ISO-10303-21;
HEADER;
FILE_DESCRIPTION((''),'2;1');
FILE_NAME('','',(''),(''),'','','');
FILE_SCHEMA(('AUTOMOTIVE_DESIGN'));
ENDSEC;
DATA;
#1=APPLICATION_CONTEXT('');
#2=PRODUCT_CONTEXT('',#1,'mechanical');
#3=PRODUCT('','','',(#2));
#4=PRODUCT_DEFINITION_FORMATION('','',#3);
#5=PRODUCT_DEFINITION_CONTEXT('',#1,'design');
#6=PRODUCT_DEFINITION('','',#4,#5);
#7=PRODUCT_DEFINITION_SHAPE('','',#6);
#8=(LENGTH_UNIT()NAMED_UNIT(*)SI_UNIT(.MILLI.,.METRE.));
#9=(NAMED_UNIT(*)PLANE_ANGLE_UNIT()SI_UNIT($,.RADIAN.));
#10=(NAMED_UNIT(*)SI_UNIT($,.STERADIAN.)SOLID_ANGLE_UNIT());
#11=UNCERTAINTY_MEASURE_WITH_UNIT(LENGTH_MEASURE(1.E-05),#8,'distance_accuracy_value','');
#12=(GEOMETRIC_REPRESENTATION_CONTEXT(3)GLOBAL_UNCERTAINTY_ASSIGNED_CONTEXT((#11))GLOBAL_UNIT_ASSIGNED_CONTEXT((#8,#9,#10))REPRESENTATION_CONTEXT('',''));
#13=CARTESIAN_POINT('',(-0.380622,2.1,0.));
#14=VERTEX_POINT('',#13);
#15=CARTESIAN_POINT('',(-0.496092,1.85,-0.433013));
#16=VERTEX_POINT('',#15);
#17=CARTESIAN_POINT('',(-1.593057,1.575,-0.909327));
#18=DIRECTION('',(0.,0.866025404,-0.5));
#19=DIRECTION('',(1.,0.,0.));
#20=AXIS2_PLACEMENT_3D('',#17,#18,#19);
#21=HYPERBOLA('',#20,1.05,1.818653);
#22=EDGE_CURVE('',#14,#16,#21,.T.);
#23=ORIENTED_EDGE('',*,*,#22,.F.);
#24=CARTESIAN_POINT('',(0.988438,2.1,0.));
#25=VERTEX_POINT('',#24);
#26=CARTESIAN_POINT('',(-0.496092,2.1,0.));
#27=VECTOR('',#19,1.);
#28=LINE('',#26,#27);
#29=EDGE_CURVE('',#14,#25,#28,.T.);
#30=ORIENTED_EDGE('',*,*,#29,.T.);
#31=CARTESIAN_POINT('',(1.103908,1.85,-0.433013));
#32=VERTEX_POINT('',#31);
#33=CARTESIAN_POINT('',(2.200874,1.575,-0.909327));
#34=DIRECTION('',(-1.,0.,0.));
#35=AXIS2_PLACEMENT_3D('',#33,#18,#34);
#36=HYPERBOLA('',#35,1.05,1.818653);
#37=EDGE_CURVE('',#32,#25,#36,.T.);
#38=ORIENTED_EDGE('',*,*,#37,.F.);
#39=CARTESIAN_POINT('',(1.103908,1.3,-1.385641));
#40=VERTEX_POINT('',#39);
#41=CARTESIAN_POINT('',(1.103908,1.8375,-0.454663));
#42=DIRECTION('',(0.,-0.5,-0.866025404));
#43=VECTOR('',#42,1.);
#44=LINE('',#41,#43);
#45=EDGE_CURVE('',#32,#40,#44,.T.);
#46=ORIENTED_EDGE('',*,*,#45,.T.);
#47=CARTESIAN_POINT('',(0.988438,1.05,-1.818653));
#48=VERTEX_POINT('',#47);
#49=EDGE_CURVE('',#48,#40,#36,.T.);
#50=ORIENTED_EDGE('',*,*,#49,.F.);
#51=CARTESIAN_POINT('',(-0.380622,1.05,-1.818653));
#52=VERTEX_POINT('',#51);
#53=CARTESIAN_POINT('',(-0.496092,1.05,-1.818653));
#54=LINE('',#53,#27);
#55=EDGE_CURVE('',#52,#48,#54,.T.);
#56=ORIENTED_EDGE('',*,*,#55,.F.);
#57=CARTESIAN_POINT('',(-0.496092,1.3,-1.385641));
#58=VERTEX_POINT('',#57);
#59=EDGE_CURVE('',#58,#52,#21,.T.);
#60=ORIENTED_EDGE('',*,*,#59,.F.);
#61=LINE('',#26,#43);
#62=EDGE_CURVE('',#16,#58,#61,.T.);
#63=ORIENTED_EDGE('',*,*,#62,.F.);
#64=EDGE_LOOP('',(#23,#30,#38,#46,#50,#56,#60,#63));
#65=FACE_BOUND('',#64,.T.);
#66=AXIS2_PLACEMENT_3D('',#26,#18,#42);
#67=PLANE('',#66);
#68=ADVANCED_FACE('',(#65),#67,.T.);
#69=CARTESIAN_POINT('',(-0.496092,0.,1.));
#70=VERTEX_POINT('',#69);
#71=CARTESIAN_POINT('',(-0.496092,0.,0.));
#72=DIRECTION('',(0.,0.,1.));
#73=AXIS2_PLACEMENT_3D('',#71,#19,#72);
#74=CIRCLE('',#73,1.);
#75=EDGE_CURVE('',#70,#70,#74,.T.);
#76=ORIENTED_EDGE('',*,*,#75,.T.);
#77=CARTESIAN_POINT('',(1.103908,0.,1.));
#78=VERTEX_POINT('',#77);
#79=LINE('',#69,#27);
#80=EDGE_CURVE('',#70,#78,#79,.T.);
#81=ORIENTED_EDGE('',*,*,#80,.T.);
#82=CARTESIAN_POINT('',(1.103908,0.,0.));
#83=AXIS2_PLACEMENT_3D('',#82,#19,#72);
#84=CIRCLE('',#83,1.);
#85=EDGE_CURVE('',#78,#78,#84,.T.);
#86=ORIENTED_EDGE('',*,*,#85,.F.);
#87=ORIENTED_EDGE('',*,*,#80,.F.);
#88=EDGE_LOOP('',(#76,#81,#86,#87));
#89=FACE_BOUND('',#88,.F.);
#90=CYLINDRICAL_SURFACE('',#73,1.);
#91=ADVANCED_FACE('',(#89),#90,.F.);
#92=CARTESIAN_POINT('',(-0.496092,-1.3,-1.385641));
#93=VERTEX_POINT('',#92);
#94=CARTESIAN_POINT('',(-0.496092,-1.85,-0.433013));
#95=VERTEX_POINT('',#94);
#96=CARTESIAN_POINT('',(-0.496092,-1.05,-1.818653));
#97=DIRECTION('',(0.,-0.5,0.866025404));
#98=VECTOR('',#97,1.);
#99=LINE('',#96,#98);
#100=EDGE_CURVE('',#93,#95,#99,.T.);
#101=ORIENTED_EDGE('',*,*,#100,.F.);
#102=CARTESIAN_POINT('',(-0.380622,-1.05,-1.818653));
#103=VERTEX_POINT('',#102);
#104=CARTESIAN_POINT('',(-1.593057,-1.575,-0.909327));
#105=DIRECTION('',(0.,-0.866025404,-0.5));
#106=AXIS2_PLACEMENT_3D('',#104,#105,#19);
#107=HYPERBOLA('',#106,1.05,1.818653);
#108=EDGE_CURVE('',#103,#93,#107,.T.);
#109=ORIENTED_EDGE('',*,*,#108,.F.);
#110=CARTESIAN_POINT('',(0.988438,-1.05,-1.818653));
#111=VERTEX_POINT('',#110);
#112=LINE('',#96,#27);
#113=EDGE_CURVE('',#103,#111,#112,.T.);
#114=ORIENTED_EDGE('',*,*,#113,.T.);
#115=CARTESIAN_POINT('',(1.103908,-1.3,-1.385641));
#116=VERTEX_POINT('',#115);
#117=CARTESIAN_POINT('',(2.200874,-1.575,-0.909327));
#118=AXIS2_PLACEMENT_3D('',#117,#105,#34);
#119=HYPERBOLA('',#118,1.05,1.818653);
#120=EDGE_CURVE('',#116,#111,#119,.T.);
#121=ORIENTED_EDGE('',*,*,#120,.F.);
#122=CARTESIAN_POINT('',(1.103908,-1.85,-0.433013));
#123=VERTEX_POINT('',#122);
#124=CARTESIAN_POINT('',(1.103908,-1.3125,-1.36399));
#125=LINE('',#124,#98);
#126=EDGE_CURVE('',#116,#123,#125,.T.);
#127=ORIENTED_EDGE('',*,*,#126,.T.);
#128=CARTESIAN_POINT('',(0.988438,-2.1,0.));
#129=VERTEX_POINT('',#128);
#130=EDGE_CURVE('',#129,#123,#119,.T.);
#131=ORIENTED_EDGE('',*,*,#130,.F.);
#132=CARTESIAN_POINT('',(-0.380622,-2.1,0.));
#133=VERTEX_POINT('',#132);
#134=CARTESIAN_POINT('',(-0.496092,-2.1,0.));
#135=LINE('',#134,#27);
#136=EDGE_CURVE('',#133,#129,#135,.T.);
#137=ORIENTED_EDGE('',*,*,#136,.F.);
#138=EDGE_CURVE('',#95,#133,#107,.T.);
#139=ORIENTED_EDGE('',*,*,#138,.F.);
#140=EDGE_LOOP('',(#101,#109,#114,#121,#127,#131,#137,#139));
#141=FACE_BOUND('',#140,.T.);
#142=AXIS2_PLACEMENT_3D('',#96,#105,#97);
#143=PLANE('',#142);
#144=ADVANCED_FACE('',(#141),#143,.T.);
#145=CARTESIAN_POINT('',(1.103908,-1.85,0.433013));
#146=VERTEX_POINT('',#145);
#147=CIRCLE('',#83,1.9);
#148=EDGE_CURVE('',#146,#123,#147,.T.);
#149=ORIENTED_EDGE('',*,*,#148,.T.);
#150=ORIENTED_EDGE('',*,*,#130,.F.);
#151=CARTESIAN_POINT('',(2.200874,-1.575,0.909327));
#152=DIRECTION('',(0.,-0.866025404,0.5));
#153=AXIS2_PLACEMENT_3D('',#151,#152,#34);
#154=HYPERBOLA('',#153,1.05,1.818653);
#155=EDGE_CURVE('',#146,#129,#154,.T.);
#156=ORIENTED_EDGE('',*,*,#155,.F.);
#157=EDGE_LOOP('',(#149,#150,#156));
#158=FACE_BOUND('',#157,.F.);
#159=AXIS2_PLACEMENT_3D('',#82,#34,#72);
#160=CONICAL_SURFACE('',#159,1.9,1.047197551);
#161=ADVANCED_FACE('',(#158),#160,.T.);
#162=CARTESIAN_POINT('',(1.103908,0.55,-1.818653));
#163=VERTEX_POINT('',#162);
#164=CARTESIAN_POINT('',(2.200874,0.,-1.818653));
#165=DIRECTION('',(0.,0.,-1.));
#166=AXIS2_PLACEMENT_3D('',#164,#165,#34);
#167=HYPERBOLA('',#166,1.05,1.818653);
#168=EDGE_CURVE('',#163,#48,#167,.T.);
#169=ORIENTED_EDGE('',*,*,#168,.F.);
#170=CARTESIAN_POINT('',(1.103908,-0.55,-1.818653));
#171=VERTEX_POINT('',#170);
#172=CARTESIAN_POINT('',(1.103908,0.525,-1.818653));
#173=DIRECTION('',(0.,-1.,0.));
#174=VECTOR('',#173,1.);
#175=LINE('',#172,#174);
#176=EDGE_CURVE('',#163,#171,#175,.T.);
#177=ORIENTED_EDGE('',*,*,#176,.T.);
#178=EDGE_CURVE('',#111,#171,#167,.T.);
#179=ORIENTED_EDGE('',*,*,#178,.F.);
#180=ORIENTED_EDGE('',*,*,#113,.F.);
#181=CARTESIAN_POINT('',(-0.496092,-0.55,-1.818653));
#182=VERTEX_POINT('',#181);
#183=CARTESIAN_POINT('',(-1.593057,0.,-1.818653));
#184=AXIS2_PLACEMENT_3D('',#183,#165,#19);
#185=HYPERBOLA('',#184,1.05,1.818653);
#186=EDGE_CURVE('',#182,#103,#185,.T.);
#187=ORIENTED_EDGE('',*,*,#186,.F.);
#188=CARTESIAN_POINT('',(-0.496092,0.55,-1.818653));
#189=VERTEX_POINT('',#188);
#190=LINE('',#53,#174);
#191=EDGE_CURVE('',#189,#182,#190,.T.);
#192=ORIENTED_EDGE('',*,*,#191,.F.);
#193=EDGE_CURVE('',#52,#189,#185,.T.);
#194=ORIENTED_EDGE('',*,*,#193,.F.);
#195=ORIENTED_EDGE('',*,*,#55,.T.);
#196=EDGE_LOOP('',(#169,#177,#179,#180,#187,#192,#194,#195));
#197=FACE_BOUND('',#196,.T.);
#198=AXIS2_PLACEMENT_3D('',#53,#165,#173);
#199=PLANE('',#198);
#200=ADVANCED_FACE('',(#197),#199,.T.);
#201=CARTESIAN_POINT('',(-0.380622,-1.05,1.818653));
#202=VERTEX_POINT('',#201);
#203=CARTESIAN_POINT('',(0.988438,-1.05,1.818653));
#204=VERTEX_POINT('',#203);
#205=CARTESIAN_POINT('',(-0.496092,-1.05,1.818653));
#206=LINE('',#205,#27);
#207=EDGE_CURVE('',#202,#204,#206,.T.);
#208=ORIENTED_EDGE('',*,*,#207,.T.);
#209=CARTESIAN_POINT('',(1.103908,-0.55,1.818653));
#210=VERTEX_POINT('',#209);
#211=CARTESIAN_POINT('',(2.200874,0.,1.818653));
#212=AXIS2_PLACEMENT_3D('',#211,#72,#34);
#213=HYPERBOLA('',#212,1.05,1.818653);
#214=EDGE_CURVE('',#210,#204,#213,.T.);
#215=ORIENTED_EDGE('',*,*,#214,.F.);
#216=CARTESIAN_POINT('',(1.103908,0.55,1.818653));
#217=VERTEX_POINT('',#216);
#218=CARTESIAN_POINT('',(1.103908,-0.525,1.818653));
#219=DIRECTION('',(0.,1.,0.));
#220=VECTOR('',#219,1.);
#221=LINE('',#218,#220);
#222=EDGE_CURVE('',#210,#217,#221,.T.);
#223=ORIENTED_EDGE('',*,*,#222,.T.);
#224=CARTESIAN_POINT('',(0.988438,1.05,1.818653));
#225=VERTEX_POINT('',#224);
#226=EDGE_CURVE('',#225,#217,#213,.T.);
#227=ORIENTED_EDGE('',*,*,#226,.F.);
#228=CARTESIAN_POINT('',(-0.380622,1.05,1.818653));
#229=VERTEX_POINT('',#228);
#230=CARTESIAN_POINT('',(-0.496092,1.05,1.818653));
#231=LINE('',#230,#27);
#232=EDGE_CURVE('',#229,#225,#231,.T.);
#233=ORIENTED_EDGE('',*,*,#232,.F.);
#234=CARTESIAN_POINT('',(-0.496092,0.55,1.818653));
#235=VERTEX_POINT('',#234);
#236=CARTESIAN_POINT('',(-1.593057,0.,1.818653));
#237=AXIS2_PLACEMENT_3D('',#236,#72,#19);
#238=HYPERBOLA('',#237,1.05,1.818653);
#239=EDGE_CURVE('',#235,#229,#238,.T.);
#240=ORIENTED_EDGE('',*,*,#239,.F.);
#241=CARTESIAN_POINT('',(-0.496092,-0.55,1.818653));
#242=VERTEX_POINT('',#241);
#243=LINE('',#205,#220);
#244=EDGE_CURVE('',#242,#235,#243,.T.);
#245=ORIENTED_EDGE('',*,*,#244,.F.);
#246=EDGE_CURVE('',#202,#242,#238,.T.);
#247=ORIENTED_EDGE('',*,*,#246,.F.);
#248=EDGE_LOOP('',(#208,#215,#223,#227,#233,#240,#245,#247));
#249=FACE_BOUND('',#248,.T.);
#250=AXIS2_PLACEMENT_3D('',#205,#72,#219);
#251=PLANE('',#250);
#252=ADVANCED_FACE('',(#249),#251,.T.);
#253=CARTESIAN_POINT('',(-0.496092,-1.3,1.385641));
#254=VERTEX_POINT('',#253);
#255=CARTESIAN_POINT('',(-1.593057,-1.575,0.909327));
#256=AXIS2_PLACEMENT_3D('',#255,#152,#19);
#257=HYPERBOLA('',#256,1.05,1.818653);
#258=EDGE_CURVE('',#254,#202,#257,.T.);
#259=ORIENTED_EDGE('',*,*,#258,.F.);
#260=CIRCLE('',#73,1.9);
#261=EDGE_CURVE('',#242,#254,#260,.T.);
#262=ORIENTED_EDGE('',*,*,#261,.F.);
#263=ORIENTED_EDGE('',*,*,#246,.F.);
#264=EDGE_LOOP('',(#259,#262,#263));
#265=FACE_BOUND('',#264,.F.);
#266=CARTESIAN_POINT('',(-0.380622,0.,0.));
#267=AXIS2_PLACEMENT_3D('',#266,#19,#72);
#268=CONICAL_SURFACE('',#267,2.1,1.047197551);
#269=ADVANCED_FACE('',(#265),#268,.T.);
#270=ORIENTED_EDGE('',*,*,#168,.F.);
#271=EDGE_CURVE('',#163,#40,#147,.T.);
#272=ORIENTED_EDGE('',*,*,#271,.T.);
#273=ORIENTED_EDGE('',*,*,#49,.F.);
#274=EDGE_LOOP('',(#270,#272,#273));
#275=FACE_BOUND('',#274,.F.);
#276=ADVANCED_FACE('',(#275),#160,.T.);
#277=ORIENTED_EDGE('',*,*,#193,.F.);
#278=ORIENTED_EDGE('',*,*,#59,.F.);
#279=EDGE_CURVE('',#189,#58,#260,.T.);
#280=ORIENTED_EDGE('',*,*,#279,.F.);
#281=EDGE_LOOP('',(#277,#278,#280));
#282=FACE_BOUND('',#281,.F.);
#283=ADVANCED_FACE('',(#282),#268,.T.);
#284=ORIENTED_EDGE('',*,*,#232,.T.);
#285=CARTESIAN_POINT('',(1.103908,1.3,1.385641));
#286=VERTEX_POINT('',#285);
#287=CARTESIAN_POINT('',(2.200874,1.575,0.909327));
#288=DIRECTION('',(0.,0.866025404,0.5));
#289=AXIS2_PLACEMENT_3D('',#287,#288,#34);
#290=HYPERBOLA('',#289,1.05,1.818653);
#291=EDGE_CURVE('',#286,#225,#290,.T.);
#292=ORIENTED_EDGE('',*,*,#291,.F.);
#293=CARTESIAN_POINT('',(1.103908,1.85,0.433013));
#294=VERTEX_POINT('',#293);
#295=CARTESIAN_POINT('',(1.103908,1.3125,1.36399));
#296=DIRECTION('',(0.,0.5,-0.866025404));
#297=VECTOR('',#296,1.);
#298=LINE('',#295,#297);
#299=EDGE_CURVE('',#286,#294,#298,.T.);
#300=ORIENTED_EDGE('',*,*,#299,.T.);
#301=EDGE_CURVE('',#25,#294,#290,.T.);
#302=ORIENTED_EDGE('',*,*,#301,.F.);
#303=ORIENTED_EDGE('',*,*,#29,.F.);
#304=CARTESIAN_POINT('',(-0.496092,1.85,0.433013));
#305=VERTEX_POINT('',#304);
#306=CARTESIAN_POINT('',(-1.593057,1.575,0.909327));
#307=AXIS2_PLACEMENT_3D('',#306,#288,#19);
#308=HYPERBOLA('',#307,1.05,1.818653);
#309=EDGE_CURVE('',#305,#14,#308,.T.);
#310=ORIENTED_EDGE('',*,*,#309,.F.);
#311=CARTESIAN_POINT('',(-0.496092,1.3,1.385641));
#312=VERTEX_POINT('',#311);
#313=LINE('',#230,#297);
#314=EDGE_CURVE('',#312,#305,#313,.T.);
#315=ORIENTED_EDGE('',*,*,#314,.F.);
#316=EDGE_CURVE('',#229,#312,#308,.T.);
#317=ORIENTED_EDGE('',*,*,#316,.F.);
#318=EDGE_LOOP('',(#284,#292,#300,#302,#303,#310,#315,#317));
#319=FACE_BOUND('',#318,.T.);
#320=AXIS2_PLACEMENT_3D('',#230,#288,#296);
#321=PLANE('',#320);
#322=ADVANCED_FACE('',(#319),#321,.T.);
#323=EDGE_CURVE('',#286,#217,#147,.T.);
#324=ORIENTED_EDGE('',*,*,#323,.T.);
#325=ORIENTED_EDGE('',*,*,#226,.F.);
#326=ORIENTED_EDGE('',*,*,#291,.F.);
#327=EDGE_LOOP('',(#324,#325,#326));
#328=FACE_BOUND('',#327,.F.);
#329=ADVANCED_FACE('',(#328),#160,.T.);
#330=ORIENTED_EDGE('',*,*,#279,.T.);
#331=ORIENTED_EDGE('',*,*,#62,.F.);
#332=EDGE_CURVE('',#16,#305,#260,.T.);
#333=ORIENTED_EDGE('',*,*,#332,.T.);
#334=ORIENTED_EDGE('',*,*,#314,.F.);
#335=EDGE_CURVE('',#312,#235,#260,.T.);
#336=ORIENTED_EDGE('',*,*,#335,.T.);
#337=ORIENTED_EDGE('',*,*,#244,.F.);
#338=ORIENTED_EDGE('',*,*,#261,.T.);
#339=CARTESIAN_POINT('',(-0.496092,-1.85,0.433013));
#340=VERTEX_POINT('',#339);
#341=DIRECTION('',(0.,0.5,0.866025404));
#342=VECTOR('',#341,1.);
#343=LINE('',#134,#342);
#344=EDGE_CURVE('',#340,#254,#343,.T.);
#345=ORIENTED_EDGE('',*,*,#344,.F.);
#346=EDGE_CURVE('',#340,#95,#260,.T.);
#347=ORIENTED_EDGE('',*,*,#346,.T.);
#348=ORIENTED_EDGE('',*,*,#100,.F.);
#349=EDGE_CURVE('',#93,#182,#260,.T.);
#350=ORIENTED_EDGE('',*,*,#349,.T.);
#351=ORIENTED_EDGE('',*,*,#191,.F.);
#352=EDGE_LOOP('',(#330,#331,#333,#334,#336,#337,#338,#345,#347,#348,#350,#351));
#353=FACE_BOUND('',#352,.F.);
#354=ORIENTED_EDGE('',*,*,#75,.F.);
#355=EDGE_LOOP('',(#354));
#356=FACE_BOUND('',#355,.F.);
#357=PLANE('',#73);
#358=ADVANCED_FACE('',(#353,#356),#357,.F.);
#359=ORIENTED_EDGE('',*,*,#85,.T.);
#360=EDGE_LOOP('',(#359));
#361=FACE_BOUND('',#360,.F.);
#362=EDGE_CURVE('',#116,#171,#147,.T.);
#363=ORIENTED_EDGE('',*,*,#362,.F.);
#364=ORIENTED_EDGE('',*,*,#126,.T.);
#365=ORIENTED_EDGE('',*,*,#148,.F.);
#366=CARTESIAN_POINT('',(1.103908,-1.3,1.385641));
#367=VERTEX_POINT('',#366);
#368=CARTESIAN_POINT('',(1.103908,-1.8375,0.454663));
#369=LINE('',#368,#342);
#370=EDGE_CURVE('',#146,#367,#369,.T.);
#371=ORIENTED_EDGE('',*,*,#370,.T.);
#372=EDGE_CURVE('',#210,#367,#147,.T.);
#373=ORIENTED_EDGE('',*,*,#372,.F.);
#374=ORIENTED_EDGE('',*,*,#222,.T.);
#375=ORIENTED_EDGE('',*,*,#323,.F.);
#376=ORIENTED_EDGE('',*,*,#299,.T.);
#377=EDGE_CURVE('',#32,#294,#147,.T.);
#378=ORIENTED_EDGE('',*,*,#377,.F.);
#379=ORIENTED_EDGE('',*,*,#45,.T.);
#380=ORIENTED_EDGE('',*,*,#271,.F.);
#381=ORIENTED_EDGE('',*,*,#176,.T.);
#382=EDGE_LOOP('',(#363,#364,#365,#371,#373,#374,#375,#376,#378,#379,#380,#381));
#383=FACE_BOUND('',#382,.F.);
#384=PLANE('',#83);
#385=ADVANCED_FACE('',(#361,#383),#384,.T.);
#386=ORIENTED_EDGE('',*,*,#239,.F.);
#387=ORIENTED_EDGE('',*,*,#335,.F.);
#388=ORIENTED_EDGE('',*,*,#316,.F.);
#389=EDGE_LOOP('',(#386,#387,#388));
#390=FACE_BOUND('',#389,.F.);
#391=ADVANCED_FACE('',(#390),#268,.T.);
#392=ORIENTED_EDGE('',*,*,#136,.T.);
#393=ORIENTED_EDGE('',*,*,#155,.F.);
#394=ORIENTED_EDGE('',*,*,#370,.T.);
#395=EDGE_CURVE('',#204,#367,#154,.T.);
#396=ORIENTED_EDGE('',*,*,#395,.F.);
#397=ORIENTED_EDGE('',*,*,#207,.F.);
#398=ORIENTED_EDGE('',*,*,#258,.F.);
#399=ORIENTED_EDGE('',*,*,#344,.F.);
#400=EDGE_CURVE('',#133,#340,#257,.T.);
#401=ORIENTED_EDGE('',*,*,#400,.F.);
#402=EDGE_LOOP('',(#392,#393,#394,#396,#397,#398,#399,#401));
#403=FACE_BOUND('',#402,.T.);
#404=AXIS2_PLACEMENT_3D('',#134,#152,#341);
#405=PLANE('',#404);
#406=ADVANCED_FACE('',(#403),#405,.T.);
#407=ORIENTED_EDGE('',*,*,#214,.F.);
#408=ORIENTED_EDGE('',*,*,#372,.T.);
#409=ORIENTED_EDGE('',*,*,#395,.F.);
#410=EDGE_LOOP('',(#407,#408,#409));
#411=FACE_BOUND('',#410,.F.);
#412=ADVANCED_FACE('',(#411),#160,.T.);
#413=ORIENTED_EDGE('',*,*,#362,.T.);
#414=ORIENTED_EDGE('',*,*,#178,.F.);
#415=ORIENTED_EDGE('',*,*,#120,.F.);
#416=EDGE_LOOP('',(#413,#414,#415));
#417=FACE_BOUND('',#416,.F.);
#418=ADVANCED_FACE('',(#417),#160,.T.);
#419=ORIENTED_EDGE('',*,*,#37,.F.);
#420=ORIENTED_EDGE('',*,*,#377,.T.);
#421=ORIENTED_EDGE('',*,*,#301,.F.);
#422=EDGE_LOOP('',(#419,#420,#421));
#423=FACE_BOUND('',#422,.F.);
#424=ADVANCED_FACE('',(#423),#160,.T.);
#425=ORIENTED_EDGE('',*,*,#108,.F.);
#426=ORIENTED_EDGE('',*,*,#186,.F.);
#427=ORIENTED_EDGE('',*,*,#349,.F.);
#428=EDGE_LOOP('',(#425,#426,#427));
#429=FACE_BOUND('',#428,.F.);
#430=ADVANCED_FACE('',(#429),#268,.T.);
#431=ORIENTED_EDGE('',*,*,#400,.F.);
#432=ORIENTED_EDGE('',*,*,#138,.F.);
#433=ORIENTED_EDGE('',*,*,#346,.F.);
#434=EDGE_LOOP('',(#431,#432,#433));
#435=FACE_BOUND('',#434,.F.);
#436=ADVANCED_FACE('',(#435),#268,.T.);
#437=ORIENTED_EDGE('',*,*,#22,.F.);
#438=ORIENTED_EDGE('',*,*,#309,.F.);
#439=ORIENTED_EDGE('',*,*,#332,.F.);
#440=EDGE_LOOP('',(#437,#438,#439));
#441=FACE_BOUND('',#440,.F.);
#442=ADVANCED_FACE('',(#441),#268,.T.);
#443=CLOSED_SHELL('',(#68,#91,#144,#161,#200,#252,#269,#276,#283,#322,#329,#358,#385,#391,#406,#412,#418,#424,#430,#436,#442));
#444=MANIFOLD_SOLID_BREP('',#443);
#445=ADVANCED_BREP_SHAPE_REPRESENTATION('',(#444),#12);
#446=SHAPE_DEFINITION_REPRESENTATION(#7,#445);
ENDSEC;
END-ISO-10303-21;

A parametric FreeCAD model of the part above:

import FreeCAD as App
import Part
import Sketcher
from FreeCAD import Vector
Q = App.Units.Quantity


def add_polygon(sketch, points):
    """Adds a closed chain of lines whose ends are joined by coincident constraints."""
    first, n = sketch.GeometryCount, len(points)
    for a, b in zip(points, points[1:] + points[:1]):
        sketch.addGeometry(Part.LineSegment(App.Vector(*a, 0), App.Vector(*b, 0)), False)
    for i in range(n):
        sketch.addConstraint(Sketcher.Constraint("Coincident", first + i, 2, first + (i + 1) % n, 1))

doc = App.newDocument("Part")
params = doc.addObject("Spreadsheet::Sheet", "Params")
for row, (alias, value) in enumerate([
    ("sketch1_width", "1.6 mm"),
    ("sketch1_height", "0.9 mm"),
    ("revolution_angle", "360 deg"),
    ("sketch2_width", "2.1 mm"),
    ("sketch2_length", "2.1 mm"),
    ("sketch2_width2", "7.43 mm"),
    ("pocket1_length", "10 mm"),
], start=1):
    params.set(f"A{row}", alias)
    params.set(f"B{row}", "=" + value)
    params.setAlias(f"B{row}", alias)

body = doc.addObject("PartDesign::Body", "Body")

sketch1 = body.newObject("Sketcher::SketchObject", "Sketch")
sketch1.AttachmentSupport = (doc.getObject("XY_Plane"), [""])
sketch1.MapMode = "FlatFace"
add_polygon(sketch1, [(-0.496092, 1), (1.103908, 1), (1.103908, 1.9), (0.988438, 2.1), (-0.380622, 2.1), (-0.496092, 1.9)])
sketch1.addConstraint([
    Sketcher.Constraint("Horizontal", 0),
    Sketcher.Constraint("Vertical", 1),
    Sketcher.Constraint("Horizontal", 3),
    Sketcher.Constraint("Vertical", 5),
    Sketcher.Constraint("Horizontal", 1, 2, 4, 2),
    Sketcher.Constraint("Equal", 2, 4),
    Sketcher.Constraint("Angle", 2, Q("120 deg")),
    Sketcher.Constraint("DistanceX", 0, 1, 0, 2, 1.6),
    Sketcher.Constraint("DistanceY", 1, 1, 1, 2, 0.9),
    Sketcher.Constraint("DistanceY", -1, 1, 0, 2, 1.0),
    Sketcher.Constraint("DistanceY", -1, 1, 2, 2, 2.1),
    Sketcher.Constraint("DistanceX", -1, 1, 0, 2, 1.103908),
])
sketch1.setExpression("Constraints[13]", "Params.sketch1_width")
sketch1.setExpression("Constraints[14]", "Params.sketch1_height")
revolution = body.newObject("PartDesign::Revolution", "Revolution")
revolution.Profile = sketch1
revolution.ReferenceAxis = (sketch1, ["H_Axis"])
revolution.setExpression("Angle", "Params.revolution_angle")

sketch2 = body.newObject("Sketcher::SketchObject", "Sketch001")
sketch2.AttachmentSupport = (doc.getObject("YZ_Plane"), [""])
sketch2.MapMode = "FlatFace"
sketch2.AttachmentOffset = App.Placement(Vector(0, 0, -0.496092), App.Rotation())
add_polygon(sketch2, [(3.715, -3.715), (-3.715, -3.715), (-3.715, 3.715), (3.715, 3.715)])
add_polygon(sketch2, [(1.05, -1.818653), (2.1, 0), (1.05, 1.818653), (-1.05, 1.818653), (-2.1, 0), (-1.05, -1.818653)])
sketch2.addConstraint([
    Sketcher.Constraint("Horizontal", 0),
    Sketcher.Constraint("Vertical", 1),
    Sketcher.Constraint("Horizontal", 2),
    Sketcher.Constraint("Vertical", 3),
    Sketcher.Constraint("Horizontal", 6),
    Sketcher.Constraint("Horizontal", 9),
    Sketcher.Constraint("Symmetric", 0, 2, 2, 2, -1, 1),
    Sketcher.Constraint("Symmetric", 4, 2, 7, 2, -1, 1),
    Sketcher.Constraint("Symmetric", 5, 2, 8, 2, -1, 1),
    Sketcher.Constraint("PointOnObject", 4, 2, -1),
    Sketcher.Constraint("Parallel", 4, 7),
    Sketcher.Constraint("Vertical", 6, 2, 8, 2),
    Sketcher.Constraint("Equal", 2, 1),
    Sketcher.Constraint("Angle", 4, Q("60 deg")),
    Sketcher.Constraint("DistanceX", 6, 2, 6, 1, 2.1),
    Sketcher.Constraint("Distance", 4, 2.1),
    Sketcher.Constraint("DistanceX", 0, 2, 0, 1, 7.43),
])
sketch2.setExpression("Constraints[24]", "Params.sketch2_width")
sketch2.setExpression("Constraints[25]", "Params.sketch2_length")
sketch2.setExpression("Constraints[26]", "Params.sketch2_width2")
pocket1 = body.newObject("PartDesign::Pocket", "Pocket")
pocket1.Profile = sketch2
pocket1.setExpression("Length", "Params.pocket1_length")
pocket1.Reversed = True

doc.recompute()
